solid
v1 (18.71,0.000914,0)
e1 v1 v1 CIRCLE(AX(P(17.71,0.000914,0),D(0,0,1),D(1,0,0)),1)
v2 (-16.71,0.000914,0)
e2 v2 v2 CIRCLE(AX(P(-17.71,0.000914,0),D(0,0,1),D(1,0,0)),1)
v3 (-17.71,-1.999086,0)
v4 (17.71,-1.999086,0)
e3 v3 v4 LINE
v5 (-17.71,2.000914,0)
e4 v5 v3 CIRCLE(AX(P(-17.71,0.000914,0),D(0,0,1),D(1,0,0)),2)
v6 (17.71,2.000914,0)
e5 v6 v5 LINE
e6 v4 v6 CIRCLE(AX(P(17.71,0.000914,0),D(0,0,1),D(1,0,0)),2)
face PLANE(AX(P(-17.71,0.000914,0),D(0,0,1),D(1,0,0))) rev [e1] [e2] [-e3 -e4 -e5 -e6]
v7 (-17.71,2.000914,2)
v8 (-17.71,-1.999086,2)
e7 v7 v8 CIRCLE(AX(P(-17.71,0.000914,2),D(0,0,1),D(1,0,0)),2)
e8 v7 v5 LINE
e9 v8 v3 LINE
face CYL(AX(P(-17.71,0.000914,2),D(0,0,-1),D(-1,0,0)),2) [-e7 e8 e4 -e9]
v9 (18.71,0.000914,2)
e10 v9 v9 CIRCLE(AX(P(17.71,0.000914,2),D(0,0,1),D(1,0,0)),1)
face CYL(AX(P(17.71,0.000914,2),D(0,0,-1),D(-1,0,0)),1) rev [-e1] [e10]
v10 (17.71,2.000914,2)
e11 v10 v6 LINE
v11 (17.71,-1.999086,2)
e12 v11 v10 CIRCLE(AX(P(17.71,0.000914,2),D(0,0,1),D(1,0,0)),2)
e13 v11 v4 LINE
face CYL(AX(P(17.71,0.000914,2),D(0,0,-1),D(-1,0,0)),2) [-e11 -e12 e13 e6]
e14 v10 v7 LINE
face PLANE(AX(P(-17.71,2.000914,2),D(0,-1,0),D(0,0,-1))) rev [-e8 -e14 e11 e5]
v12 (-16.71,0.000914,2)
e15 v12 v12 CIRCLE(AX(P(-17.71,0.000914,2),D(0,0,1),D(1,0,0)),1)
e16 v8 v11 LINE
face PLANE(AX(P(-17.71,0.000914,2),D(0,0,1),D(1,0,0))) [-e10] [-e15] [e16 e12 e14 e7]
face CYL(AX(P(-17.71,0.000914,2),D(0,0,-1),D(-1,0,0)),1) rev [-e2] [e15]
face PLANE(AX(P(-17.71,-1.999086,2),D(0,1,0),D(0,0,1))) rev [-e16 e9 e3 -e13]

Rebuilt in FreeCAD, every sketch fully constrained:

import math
import FreeCAD as App
import Part
import Sketcher
from FreeCAD import Vector

doc = App.newDocument("Part")
body = doc.addObject("PartDesign::Body", "Body")

sketch1 = body.newObject("Sketcher::SketchObject", "Sketch")
sketch1.AttachmentSupport = (doc.getObject("XY_Plane"), [""])
sketch1.MapMode = "FlatFace"
sketch1.addGeometry([
    Part.LineSegment(Vector(17.7, 2, 0), Vector(-17.7, 2, 0)),
    Part.ArcOfCircle(Part.Circle(Vector(-17.7, 0, 0), Vector(0, 0, 1), 2), math.radians(90), math.radians(270)),
    Part.LineSegment(Vector(-17.7, -2, 0), Vector(17.7, -2, 0)),
    Part.ArcOfCircle(Part.Circle(Vector(17.7, 0, 0), Vector(0, 0, 1), 2), math.radians(-90), math.radians(90)),
    Part.Circle(Vector(17.7, 0, 0), Vector(0, 0, 1), 1),
    Part.Circle(Vector(-17.7, 0, 0), Vector(0, 0, 1), 1),
], False)
sketch1.addConstraint([
    Sketcher.Constraint("Tangent", 0, 2, 1, 1),
    Sketcher.Constraint("Tangent", 1, 2, 2, 1),
    Sketcher.Constraint("Tangent", 2, 2, 3, 1),
    Sketcher.Constraint("Tangent", 3, 2, 0, 1),
    Sketcher.Constraint("Horizontal", 0),
    Sketcher.Constraint("Horizontal", 2),
    Sketcher.Constraint("Coincident", 4, 3, 3, 3),
    Sketcher.Constraint("Coincident", 5, 3, 1, 3),
    Sketcher.Constraint("Equal", 4, 5),
    Sketcher.Constraint("Diameter", 4, 2.0),
    Sketcher.Constraint("Radius", 1, 2.0),
    Sketcher.Constraint("DistanceX", 0, 2, 0, 1, 35.42),
    Sketcher.Constraint("DistanceX", 1, 3, -1, 1, 17.71),
    Sketcher.Constraint("DistanceY", -1, 1, 1, 3, 0.000914),
])
pad1 = body.newObject("PartDesign::Pad", "Pad")
pad1.Profile = sketch1
pad1.Length = 2

doc.recompute()
